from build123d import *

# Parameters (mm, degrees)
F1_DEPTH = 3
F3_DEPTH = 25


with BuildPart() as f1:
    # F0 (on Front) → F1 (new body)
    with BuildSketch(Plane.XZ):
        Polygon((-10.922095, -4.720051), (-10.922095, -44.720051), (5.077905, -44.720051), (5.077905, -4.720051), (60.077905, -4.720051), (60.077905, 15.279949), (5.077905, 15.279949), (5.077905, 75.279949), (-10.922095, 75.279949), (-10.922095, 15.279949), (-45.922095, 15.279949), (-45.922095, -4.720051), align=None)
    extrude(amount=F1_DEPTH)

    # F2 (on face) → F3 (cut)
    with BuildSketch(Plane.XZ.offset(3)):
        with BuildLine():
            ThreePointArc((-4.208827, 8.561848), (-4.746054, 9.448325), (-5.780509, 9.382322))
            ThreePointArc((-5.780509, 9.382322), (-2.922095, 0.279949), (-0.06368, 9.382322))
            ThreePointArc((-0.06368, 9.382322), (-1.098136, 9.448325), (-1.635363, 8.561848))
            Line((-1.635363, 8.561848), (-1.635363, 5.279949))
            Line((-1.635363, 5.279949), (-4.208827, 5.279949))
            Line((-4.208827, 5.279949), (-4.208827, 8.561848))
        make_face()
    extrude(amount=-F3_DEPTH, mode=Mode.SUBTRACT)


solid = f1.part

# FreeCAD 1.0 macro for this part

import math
import FreeCAD as App
import Part
import Sketcher
Q = App.Units.Quantity


def add_polygon(sketch, points):
    """Adds a closed chain of lines whose ends are joined by coincident constraints."""
    first, n = sketch.GeometryCount, len(points)
    for a, b in zip(points, points[1:] + points[:1]):
        sketch.addGeometry(Part.LineSegment(App.Vector(*a, 0), App.Vector(*b, 0)), False)
    for i in range(n):
        sketch.addConstraint(Sketcher.Constraint("Coincident", first + i, 2, first + (i + 1) % n, 1))

doc = App.newDocument("Part")
body = doc.addObject("PartDesign::Body", "Body")

# Sketch on XZ plane
sketch1 = doc.addObject("Sketcher::SketchObject", "Sketch")
body.addObject(sketch1)
sketch1.AttachmentSupport = (doc.XZ_Plane, [""])
sketch1.MapMode = "FlatFace"
add_polygon(sketch1, [(-11, -5), (-11, -45), (5, -45), (5, -5), (60, -5), (60, 15), (5, 15), (5, 75), (-11, 75), (-11, 15), (-46, 15), (-46, -5)])  # lines 0-11
sketch1.addConstraint([
    Sketcher.Constraint("Vertical", 0),
    Sketcher.Constraint("Horizontal", 1),
    Sketcher.Constraint("Vertical", 2),
    Sketcher.Constraint("Horizontal", 3),
    Sketcher.Constraint("Vertical", 4),
    Sketcher.Constraint("Horizontal", 5),
    Sketcher.Constraint("Vertical", 6),
    Sketcher.Constraint("Horizontal", 7),
    Sketcher.Constraint("Vertical", 8),
    Sketcher.Constraint("Horizontal", 9),
    Sketcher.Constraint("Vertical", 10),
    Sketcher.Constraint("Horizontal", 11),
    Sketcher.Constraint("Horizontal", 5, 2, 8, 2),
    Sketcher.Constraint("Horizontal", 3, 2, 10, 2),
    Sketcher.Constraint("Vertical", 2, 2, 5, 2),
    Sketcher.Constraint("Vertical", 0, 2, 7, 2),
    Sketcher.Constraint("DistanceX", 1, 1, 1, 2, Q("16 mm")),
    Sketcher.Constraint("DistanceX", 3, 1, 3, 2, Q("55 mm")),
    Sketcher.Constraint("DistanceX", 9, 2, 9, 1, Q("35 mm")),
    Sketcher.Constraint("DistanceY", 0, 2, 0, 1, Q("40 mm")),
    Sketcher.Constraint("DistanceY", 4, 1, 4, 2, Q("20 mm")),
    Sketcher.Constraint("DistanceY", 6, 1, 6, 2, Q("60 mm")),
    Sketcher.Constraint("DistanceY", 0, 2, -1, 1, Q("44.720051 mm")),
    Sketcher.Constraint("DistanceX", 0, 2, -1, 1, Q("10.922095 mm")),
])
pad1 = doc.addObject("PartDesign::Pad", "Pad")
body.addObject(pad1)
pad1.Profile = sketch1
pad1.Length = 3

# Sketch on XZ plane
sketch2 = doc.addObject("Sketcher::SketchObject", "Sketch001")
body.addObject(sketch2)
sketch2.AttachmentSupport = (doc.XZ_Plane, [""])
sketch2.MapMode = "FlatFace"
sketch2.AttachmentOffset = App.Placement(App.Vector(0, 0, 3), App.Rotation())
sketch2.addGeometry([
    Part.ArcOfCircle(Part.Circle(App.Vector(-5.2, 8.6, 0), App.Vector(0, 0, 1), 1), math.radians(0), math.radians(125)),  # 0
    Part.ArcOfCircle(Part.Circle(App.Vector(-2.9, 5.3, 0), App.Vector(0, 0, 1), 5), math.radians(125), math.radians(415)),  # 1
    Part.ArcOfCircle(Part.Circle(App.Vector(-0.6, 8.6, 0), App.Vector(0, 0, 1), 1), math.radians(55), math.radians(180)),  # 2
    Part.LineSegment(App.Vector(-1.6, 8.6, 0), App.Vector(-1.6, 5.3, 0)),  # 3
    Part.LineSegment(App.Vector(-1.6, 5.3, 0), App.Vector(-4.2, 5.3, 0)),  # 4
    Part.LineSegment(App.Vector(-4.2, 5.3, 0), App.Vector(-4.2, 8.6, 0)),  # 5
], False)
sketch2.addConstraint([
    Sketcher.Constraint("Tangent", 0, 2, 1, 1),
    Sketcher.Constraint("Tangent", 1, 2, 2, 1),
    Sketcher.Constraint("Tangent", 2, 2, 3, 1),
    Sketcher.Constraint("Coincident", 3, 2, 4, 1),
    Sketcher.Constraint("Coincident", 4, 2, 5, 1),
    Sketcher.Constraint("Tangent", 5, 2, 0, 1),
    Sketcher.Constraint("Vertical", 3),
    Sketcher.Constraint("Horizontal", 4),
    Sketcher.Constraint("Vertical", 5),
    Sketcher.Constraint("Equal", 0, 2),
    Sketcher.Constraint("Horizontal", 0, 3, 2, 3),
    Sketcher.Constraint("Horizontal", 1, 3, 3, 2),
    Sketcher.Constraint("Radius", 0, Q("0.999999 mm")),
    Sketcher.Constraint("Radius", 1, Q("5 mm")),
    Sketcher.Constraint("DistanceY", 3, 2, 3, 1, Q("3.281899 mm")),
    Sketcher.Constraint("DistanceY", -1, 1, 0, 3, Q("8.561849 mm")),
    Sketcher.Constraint("DistanceX", 0, 2, -1, 1, Q("5.780509 mm")),
])
pocket1 = doc.addObject("PartDesign::Pocket", "Pocket")
body.addObject(pocket1)
pocket1.Profile = sketch2
pocket1.Length = 25

doc.recompute()
